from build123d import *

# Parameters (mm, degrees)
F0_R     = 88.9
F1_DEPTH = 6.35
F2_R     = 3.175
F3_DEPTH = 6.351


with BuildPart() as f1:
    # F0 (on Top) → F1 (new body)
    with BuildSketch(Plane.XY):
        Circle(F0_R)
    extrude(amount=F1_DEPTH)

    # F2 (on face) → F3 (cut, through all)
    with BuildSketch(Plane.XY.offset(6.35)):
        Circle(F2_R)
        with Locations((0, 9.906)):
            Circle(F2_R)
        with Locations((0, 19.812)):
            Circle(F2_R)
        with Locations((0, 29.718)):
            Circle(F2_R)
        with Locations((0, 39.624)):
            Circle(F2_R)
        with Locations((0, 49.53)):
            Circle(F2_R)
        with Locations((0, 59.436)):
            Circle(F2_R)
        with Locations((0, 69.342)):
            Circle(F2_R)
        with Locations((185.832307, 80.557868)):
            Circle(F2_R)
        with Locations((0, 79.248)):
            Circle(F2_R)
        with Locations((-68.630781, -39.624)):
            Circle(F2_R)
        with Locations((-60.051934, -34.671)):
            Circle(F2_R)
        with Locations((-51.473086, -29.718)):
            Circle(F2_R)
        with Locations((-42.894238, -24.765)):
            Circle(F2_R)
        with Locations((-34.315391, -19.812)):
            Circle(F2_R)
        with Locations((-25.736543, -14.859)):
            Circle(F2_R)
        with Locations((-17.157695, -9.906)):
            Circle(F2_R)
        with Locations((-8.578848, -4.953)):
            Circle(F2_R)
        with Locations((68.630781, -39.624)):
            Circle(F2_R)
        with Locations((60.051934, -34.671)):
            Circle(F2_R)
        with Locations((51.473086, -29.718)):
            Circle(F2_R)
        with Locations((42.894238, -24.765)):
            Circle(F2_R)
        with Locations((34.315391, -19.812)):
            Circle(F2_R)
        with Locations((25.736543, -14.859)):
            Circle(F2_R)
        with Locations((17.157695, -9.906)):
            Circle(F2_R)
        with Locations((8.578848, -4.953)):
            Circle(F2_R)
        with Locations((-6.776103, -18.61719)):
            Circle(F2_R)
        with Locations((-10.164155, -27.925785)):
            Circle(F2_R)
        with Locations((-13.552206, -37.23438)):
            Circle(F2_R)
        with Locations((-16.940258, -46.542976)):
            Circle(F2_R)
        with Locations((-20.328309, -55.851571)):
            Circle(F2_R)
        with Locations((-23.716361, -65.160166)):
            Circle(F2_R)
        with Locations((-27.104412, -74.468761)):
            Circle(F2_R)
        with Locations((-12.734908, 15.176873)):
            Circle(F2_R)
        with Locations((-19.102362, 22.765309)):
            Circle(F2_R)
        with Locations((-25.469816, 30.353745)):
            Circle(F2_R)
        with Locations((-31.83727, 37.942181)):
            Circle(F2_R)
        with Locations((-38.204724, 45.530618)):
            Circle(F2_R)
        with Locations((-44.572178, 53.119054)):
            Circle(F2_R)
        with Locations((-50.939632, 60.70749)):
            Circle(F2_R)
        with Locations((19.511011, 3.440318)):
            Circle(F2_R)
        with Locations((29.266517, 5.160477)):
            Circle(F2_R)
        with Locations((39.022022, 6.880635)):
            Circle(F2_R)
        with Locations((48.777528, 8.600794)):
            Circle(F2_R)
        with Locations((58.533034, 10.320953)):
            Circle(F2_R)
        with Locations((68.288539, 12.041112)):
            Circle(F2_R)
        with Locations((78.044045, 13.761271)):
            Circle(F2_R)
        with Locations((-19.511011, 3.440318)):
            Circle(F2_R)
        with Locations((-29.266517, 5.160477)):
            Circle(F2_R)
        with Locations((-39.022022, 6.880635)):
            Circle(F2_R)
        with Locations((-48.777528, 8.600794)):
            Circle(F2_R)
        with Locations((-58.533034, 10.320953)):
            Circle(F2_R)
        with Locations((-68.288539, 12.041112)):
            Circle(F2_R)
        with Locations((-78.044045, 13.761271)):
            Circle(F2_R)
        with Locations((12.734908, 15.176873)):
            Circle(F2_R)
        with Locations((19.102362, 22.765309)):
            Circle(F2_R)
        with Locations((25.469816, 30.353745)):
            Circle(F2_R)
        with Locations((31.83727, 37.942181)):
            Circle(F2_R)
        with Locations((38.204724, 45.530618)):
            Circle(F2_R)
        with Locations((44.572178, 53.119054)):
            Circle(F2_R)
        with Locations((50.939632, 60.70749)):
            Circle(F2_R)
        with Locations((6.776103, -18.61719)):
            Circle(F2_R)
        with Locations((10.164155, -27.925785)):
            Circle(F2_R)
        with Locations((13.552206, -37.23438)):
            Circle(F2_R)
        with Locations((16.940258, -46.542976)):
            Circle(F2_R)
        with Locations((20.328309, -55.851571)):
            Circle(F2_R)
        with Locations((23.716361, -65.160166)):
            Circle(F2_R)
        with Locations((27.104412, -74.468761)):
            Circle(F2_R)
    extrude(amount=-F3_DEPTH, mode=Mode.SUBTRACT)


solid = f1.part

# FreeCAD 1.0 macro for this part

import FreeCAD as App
import Part
import Sketcher
from FreeCAD import Vector
Q = App.Units.Quantity

doc = App.newDocument("Part")
params = doc.addObject("Spreadsheet::Sheet", "Params")
for row, (alias, value) in enumerate([
    ("sketch1_diameter", "7 in"),
    ("pad1_length", "0.25 in"),
    ("sketch2_diameter", "0.25 in"),
], start=1):
    params.set(f"A{row}", alias)
    params.set(f"B{row}", "=" + value)
    params.setAlias(f"B{row}", alias)

body = doc.addObject("PartDesign::Body", "Body")

# Sketch on XY plane
sketch1 = doc.addObject("Sketcher::SketchObject", "Sketch")
body.addObject(sketch1)
sketch1.AttachmentSupport = (doc.XY_Plane, [""])
sketch1.MapMode = "FlatFace"
sketch1.addGeometry(Part.Circle(Vector(0, 0, 0), Vector(0, 0, 1), 89), False)
sketch1.addConstraint([
    Sketcher.Constraint("Coincident", 0, 3, -1, 1),
    Sketcher.Constraint("Diameter", 0, Q("7 in")),
])
sketch1.setExpression("Constraints[1]", "Params.sketch1_diameter")
pad1 = doc.addObject("PartDesign::Pad", "Pad")
body.addObject(pad1)
pad1.Profile = sketch1
pad1.setExpression("Length", "Params.pad1_length")

# Sketch on XY plane
sketch2 = doc.addObject("Sketcher::SketchObject", "Sketch001")
body.addObject(sketch2)
sketch2.AttachmentSupport = (doc.XY_Plane, [""])
sketch2.MapMode = "FlatFace"
sketch2.AttachmentOffset = App.Placement(Vector(0, 0, 0.25 * 25.4), App.Rotation())
sketch2.addGeometry([
    Part.Circle(Vector(0, 0, 0), Vector(0, 0, 1), 3.2),  # 0
    Part.Circle(Vector(0, 9.9, 0), Vector(0, 0, 1), 3.2),  # 1
    Part.Circle(Vector(0, 19.8, 0), Vector(0, 0, 1), 3.2),  # 2
    Part.Circle(Vector(0, 29.7, 0), Vector(0, 0, 1), 3.2),  # 3
    Part.Circle(Vector(0, 39.6, 0), Vector(0, 0, 1), 3.2),  # 4
    Part.Circle(Vector(0, 49.5, 0), Vector(0, 0, 1), 3.2),  # 5
    Part.Circle(Vector(0, 59.4, 0), Vector(0, 0, 1), 3.2),  # 6
    Part.Circle(Vector(0, 69.3, 0), Vector(0, 0, 1), 3.2),  # 7
    Part.Circle(Vector(185.8, 80.6, 0), Vector(0, 0, 1), 3.2),  # 8
    Part.Circle(Vector(0, 79.2, 0), Vector(0, 0, 1), 3.2),  # 9
    Part.Circle(Vector(-68.6, -39.6, 0), Vector(0, 0, 1), 3.2),  # 10
    Part.Circle(Vector(-60.1, -34.7, 0), Vector(0, 0, 1), 3.2),  # 11
    Part.Circle(Vector(-51.5, -29.7, 0), Vector(0, 0, 1), 3.2),  # 12
    Part.Circle(Vector(-42.9, -24.8, 0), Vector(0, 0, 1), 3.2),  # 13
    Part.Circle(Vector(-34.3, -19.8, 0), Vector(0, 0, 1), 3.2),  # 14
    Part.Circle(Vector(-25.7, -14.9, 0), Vector(0, 0, 1), 3.2),  # 15
    Part.Circle(Vector(-17.2, -9.9, 0), Vector(0, 0, 1), 3.2),  # 16
    Part.Circle(Vector(-8.6, -5, 0), Vector(0, 0, 1), 3.2),  # 17
    Part.Circle(Vector(68.6, -39.6, 0), Vector(0, 0, 1), 3.2),  # 18
    Part.Circle(Vector(60.1, -34.7, 0), Vector(0, 0, 1), 3.2),  # 19
    Part.Circle(Vector(51.5, -29.7, 0), Vector(0, 0, 1), 3.2),  # 20
    Part.Circle(Vector(42.9, -24.8, 0), Vector(0, 0, 1), 3.2),  # 21
    Part.Circle(Vector(34.3, -19.8, 0), Vector(0, 0, 1), 3.2),  # 22
    Part.Circle(Vector(25.7, -14.9, 0), Vector(0, 0, 1), 3.2),  # 23
    Part.Circle(Vector(17.2, -9.9, 0), Vector(0, 0, 1), 3.2),  # 24
    Part.Circle(Vector(8.6, -5, 0), Vector(0, 0, 1), 3.2),  # 25
    Part.Circle(Vector(-6.8, -18.6, 0), Vector(0, 0, 1), 3.2),  # 26
    Part.Circle(Vector(-10.2, -27.9, 0), Vector(0, 0, 1), 3.2),  # 27
    Part.Circle(Vector(-13.6, -37.2, 0), Vector(0, 0, 1), 3.2),  # 28
    Part.Circle(Vector(-16.9, -46.5, 0), Vector(0, 0, 1), 3.2),  # 29
    Part.Circle(Vector(-20.3, -55.9, 0), Vector(0, 0, 1), 3.2),  # 30
    Part.Circle(Vector(-23.7, -65.2, 0), Vector(0, 0, 1), 3.2),  # 31
    Part.Circle(Vector(-27.1, -74.5, 0), Vector(0, 0, 1), 3.2),  # 32
    Part.Circle(Vector(-12.7, 15.2, 0), Vector(0, 0, 1), 3.2),  # 33
    Part.Circle(Vector(-19.1, 22.8, 0), Vector(0, 0, 1), 3.2),  # 34
    Part.Circle(Vector(-25.5, 30.4, 0), Vector(0, 0, 1), 3.2),  # 35
    Part.Circle(Vector(-31.8, 37.9, 0), Vector(0, 0, 1), 3.2),  # 36
    Part.Circle(Vector(-38.2, 45.5, 0), Vector(0, 0, 1), 3.2),  # 37
    Part.Circle(Vector(-44.6, 53.1, 0), Vector(0, 0, 1), 3.2),  # 38
    Part.Circle(Vector(-50.9, 60.7, 0), Vector(0, 0, 1), 3.2),  # 39
    Part.Circle(Vector(19.5, 3.4, 0), Vector(0, 0, 1), 3.2),  # 40
    Part.Circle(Vector(29.3, 5.2, 0), Vector(0, 0, 1), 3.2),  # 41
    Part.Circle(Vector(39, 6.9, 0), Vector(0, 0, 1), 3.2),  # 42
    Part.Circle(Vector(48.8, 8.6, 0), Vector(0, 0, 1), 3.2),  # 43
    Part.Circle(Vector(58.5, 10.3, 0), Vector(0, 0, 1), 3.2),  # 44
    Part.Circle(Vector(68.3, 12, 0), Vector(0, 0, 1), 3.2),  # 45
    Part.Circle(Vector(78, 13.8, 0), Vector(0, 0, 1), 3.2),  # 46
    Part.Circle(Vector(-19.5, 3.4, 0), Vector(0, 0, 1), 3.2),  # 47
    Part.Circle(Vector(-29.3, 5.2, 0), Vector(0, 0, 1), 3.2),  # 48
    Part.Circle(Vector(-39, 6.9, 0), Vector(0, 0, 1), 3.2),  # 49
    Part.Circle(Vector(-48.8, 8.6, 0), Vector(0, 0, 1), 3.2),  # 50
    Part.Circle(Vector(-58.5, 10.3, 0), Vector(0, 0, 1), 3.2),  # 51
    Part.Circle(Vector(-68.3, 12, 0), Vector(0, 0, 1), 3.2),  # 52
    Part.Circle(Vector(-78, 13.8, 0), Vector(0, 0, 1), 3.2),  # 53
    Part.Circle(Vector(12.7, 15.2, 0), Vector(0, 0, 1), 3.2),  # 54
    Part.Circle(Vector(19.1, 22.8, 0), Vector(0, 0, 1), 3.2),  # 55
    Part.Circle(Vector(25.5, 30.4, 0), Vector(0, 0, 1), 3.2),  # 56
    Part.Circle(Vector(31.8, 37.9, 0), Vector(0, 0, 1), 3.2),  # 57
    Part.Circle(Vector(38.2, 45.5, 0), Vector(0, 0, 1), 3.2),  # 58
    Part.Circle(Vector(44.6, 53.1, 0), Vector(0, 0, 1), 3.2),  # 59
    Part.Circle(Vector(50.9, 60.7, 0), Vector(0, 0, 1), 3.2),  # 60
    Part.Circle(Vector(6.8, -18.6, 0), Vector(0, 0, 1), 3.2),  # 61
    Part.Circle(Vector(10.2, -27.9, 0), Vector(0, 0, 1), 3.2),  # 62
    Part.Circle(Vector(13.6, -37.2, 0), Vector(0, 0, 1), 3.2),  # 63
    Part.Circle(Vector(16.9, -46.5, 0), Vector(0, 0, 1), 3.2),  # 64
    Part.Circle(Vector(20.3, -55.9, 0), Vector(0, 0, 1), 3.2),  # 65
    Part.Circle(Vector(23.7, -65.2, 0), Vector(0, 0, 1), 3.2),  # 66
    Part.Circle(Vector(27.1, -74.5, 0), Vector(0, 0, 1), 3.2),  # 67
], False)
sketch2.addConstraint([
    Sketcher.Constraint("Coincident", 0, 3, -1, 1),
    Sketcher.Constraint("Equal", 0, 1),
    Sketcher.Constraint("Equal", 1, 2),
    Sketcher.Constraint("Equal", 2, 3),
    Sketcher.Constraint("Equal", 3, 4),
    Sketcher.Constraint("Equal", 4, 5),
    Sketcher.Constraint("Equal", 5, 6),
    Sketcher.Constraint("Equal", 6, 7),
    Sketcher.Constraint("Equal", 7, 8),
    Sketcher.Constraint("Equal", 8, 9),
    Sketcher.Constraint("Equal", 9, 10),
    Sketcher.Constraint("Equal", 10, 11),
    Sketcher.Constraint("Equal", 11, 12),
    Sketcher.Constraint("Equal", 12, 13),
    Sketcher.Constraint("Equal", 13, 14),
    Sketcher.Constraint("Equal", 14, 15),
    Sketcher.Constraint("Equal", 15, 16),
    Sketcher.Constraint("Equal", 16, 17),
    Sketcher.Constraint("Equal", 17, 18),
    Sketcher.Constraint("Equal", 18, 19),
    Sketcher.Constraint("Equal", 19, 20),
    Sketcher.Constraint("Equal", 20, 21),
    Sketcher.Constraint("Equal", 21, 22),
    Sketcher.Constraint("Equal", 22, 23),
    Sketcher.Constraint("Equal", 23, 24),
    Sketcher.Constraint("Equal", 24, 25),
    Sketcher.Constraint("Equal", 25, 26),
    Sketcher.Constraint("Equal", 26, 27),
    Sketcher.Constraint("Equal", 27, 28),
    Sketcher.Constraint("Equal", 28, 29),
    Sketcher.Constraint("Equal", 29, 30),
    Sketcher.Constraint("Equal", 30, 31),
    Sketcher.Constraint("Equal", 31, 32),
    Sketcher.Constraint("Equal", 32, 33),
    Sketcher.Constraint("Equal", 33, 34),
    Sketcher.Constraint("Equal", 34, 35),
    Sketcher.Constraint("Equal", 35, 36),
    Sketcher.Constraint("Equal", 36, 37),
    Sketcher.Constraint("Equal", 37, 38),
    Sketcher.Constraint("Equal", 38, 39),
    Sketcher.Constraint("Equal", 39, 40),
    Sketcher.Constraint("Equal", 40, 41),
    Sketcher.Constraint("Equal", 41, 42),
    Sketcher.Constraint("Equal", 42, 43),
    Sketcher.Constraint("Equal", 43, 44),
    Sketcher.Constraint("Equal", 44, 45),
    Sketcher.Constraint("Equal", 45, 46),
    Sketcher.Constraint("Equal", 46, 47),
    Sketcher.Constraint("Equal", 47, 48),
    Sketcher.Constraint("Equal", 48, 49),
    Sketcher.Constraint("Equal", 49, 50),
    Sketcher.Constraint("Equal", 50, 51),
    Sketcher.Constraint("Equal", 51, 52),
    Sketcher.Constraint("Equal", 52, 53),
    Sketcher.Constraint("Equal", 53, 54),
    Sketcher.Constraint("Equal", 54, 55),
    Sketcher.Constraint("Equal", 55, 56),
    Sketcher.Constraint("Equal", 56, 57),
    Sketcher.Constraint("Equal", 57, 58),
    Sketcher.Constraint("Equal", 58, 59),
    Sketcher.Constraint("Equal", 59, 60),
    Sketcher.Constraint("Equal", 60, 61),
    Sketcher.Constraint("Equal", 61, 62),
    Sketcher.Constraint("Equal", 62, 63),
    Sketcher.Constraint("Equal", 63, 64),
    Sketcher.Constraint("Equal", 64, 65),
    Sketcher.Constraint("Equal", 65, 66),
    Sketcher.Constraint("Equal", 66, 67),
    Sketcher.Constraint("Symmetric", 10, 3, 18, 3, -2),
    Sketcher.Constraint("Symmetric", 11, 3, 19, 3, -2),
    Sketcher.Constraint("Symmetric", 12, 3, 20, 3, -2),
    Sketcher.Constraint("Symmetric", 13, 3, 21, 3, -2),
    Sketcher.Constraint("Symmetric", 14, 3, 22, 3, -2),
    Sketcher.Constraint("Symmetric", 15, 3, 23, 3, -2),
    Sketcher.Constraint("Symmetric", 16, 3, 24, 3, -2),
    Sketcher.Constraint("Symmetric", 17, 3, 25, 3, -2),
    Sketcher.Constraint("Symmetric", 40, 3, 47, 3, -2),
    Sketcher.Constraint("Symmetric", 41, 3, 48, 3, -2),
    Sketcher.Constraint("Symmetric", 42, 3, 49, 3, -2),
    Sketcher.Constraint("Symmetric", 43, 3, 50, 3, -2),
    Sketcher.Constraint("Symmetric", 44, 3, 51, 3, -2),
    Sketcher.Constraint("Symmetric", 45, 3, 52, 3, -2),
    Sketcher.Constraint("Symmetric", 46, 3, 53, 3, -2),
    Sketcher.Constraint("Symmetric", 33, 3, 54, 3, -2),
    Sketcher.Constraint("Symmetric", 34, 3, 55, 3, -2),
    Sketcher.Constraint("Symmetric", 35, 3, 56, 3, -2),
    Sketcher.Constraint("Symmetric", 36, 3, 57, 3, -2),
    Sketcher.Constraint("Symmetric", 37, 3, 58, 3, -2),
    Sketcher.Constraint("Symmetric", 38, 3, 59, 3, -2),
    Sketcher.Constraint("Symmetric", 39, 3, 60, 3, -2),
    Sketcher.Constraint("Symmetric", 26, 3, 61, 3, -2),
    Sketcher.Constraint("Symmetric", 27, 3, 62, 3, -2),
    Sketcher.Constraint("Symmetric", 28, 3, 63, 3, -2),
    Sketcher.Constraint("Symmetric", 29, 3, 64, 3, -2),
    Sketcher.Constraint("Symmetric", 30, 3, 65, 3, -2),
    Sketcher.Constraint("Symmetric", 31, 3, 66, 3, -2),
    Sketcher.Constraint("Symmetric", 32, 3, 67, 3, -2),
    Sketcher.Constraint("PointOnObject", 1, 3, -2),
    Sketcher.Constraint("PointOnObject", 2, 3, -2),
    Sketcher.Constraint("PointOnObject", 3, 3, -2),
    Sketcher.Constraint("PointOnObject", 4, 3, -2),
    Sketcher.Constraint("PointOnObject", 5, 3, -2),
    Sketcher.Constraint("PointOnObject", 6, 3, -2),
    Sketcher.Constraint("PointOnObject", 7, 3, -2),
    Sketcher.Constraint("PointOnObject", 9, 3, -2),
    Sketcher.Constraint("Diameter", 0, Q("0.25 in")),
    Sketcher.Constraint("DistanceY", -1, 1, 1, 3, Q("0.39 in")),
    Sketcher.Constraint("DistanceY", -1, 1, 2, 3, Q("0.78 in")),
    Sketcher.Constraint("DistanceY", -1, 1, 3, 3, Q("1.17 in")),
    Sketcher.Constraint("DistanceY", -1, 1, 4, 3, Q("1.56 in")),
    Sketcher.Constraint("DistanceY", -1, 1, 5, 3, Q("1.95 in")),
    Sketcher.Constraint("DistanceY", -1, 1, 6, 3, Q("2.34 in")),
    Sketcher.Constraint("DistanceY", -1, 1, 7, 3, Q("2.73 in")),
    Sketcher.Constraint("DistanceY", -1, 1, 9, 3, Q("3.12 in")),
    Sketcher.Constraint("DistanceY", 10, 3, -1, 1, Q("1.56 in")),
    Sketcher.Constraint("DistanceY", 12, 3, -1, 1, Q("1.17 in")),
    Sketcher.Constraint("DistanceY", 14, 3, -1, 1, Q("0.78 in")),
    Sketcher.Constraint("DistanceY", 16, 3, -1, 1, Q("0.39 in")),
    Sketcher.Constraint("DistanceY", 11, 3, -1, 1, Q("1.365 in")),
    Sketcher.Constraint("DistanceY", 13, 3, -1, 1, Q("0.975 in")),
    Sketcher.Constraint("DistanceY", 15, 3, -1, 1, Q("0.585 in")),
    Sketcher.Constraint("DistanceY", 17, 3, -1, 1, Q("0.195 in")),
    Sketcher.Constraint("DistanceX", 16, 3, -1, 1, Q("0.6754998 in")),
    Sketcher.Constraint("DistanceX", -1, 1, 42, 3, Q("1.5363001 in")),
    Sketcher.Constraint("DistanceX", -1, 1, 46, 3, Q("3.0726002 in")),
    Sketcher.Constraint("DistanceY", -1, 1, 8, 3, Q("80.557868 mm")),
    Sketcher.Constraint("DistanceX", 10, 3, -1, 1, Q("68.630781 mm")),
    Sketcher.Constraint("DistanceX", 14, 3, -1, 1, Q("34.315391 mm")),
    Sketcher.Constraint("DistanceX", 17, 3, -1, 1, Q("8.578848 mm")),
    Sketcher.Constraint("DistanceY", 26, 3, -1, 1, Q("18.61719 mm")),
    Sketcher.Constraint("DistanceY", 28, 3, -1, 1, Q("37.23438 mm")),
    Sketcher.Constraint("DistanceX", 29, 3, -1, 1, Q("16.940258 mm")),
    Sketcher.Constraint("DistanceX", 30, 3, -1, 1, Q("20.328309 mm")),
    Sketcher.Constraint("DistanceY", 30, 3, -1, 1, Q("55.851571 mm")),
    Sketcher.Constraint("DistanceX", 31, 3, -1, 1, Q("23.716361 mm")),
    Sketcher.Constraint("DistanceX", 32, 3, -1, 1, Q("27.104412 mm")),
    Sketcher.Constraint("DistanceY", 32, 3, -1, 1, Q("74.468761 mm")),
    Sketcher.Constraint("DistanceX", 33, 3, -1, 1, Q("12.734908 mm")),
    Sketcher.Constraint("DistanceX", 34, 3, -1, 1, Q("19.102362 mm")),
    Sketcher.Constraint("DistanceY", -1, 1, 34, 3, Q("22.765309 mm")),
    Sketcher.Constraint("DistanceX", 36, 3, -1, 1, Q("31.83727 mm")),
    Sketcher.Constraint("DistanceY", -1, 1, 36, 3, Q("37.942181 mm")),
    Sketcher.Constraint("DistanceY", -1, 1, 39, 3, Q("60.70749 mm")),
    Sketcher.Constraint("DistanceX", -1, 1, 40, 3, Q("19.511011 mm")),
    Sketcher.Constraint("DistanceY", -1, 1, 40, 3, Q("3.440318 mm")),
    Sketcher.Constraint("DistanceX", -1, 1, 45, 3, Q("68.288539 mm")),
    Sketcher.Constraint("DistanceY", -1, 1, 46, 3, Q("13.761271 mm")),
    Sketcher.Constraint("DistanceX", -1, 1, 8, 3, Q("185.832307 mm")),
    Sketcher.Constraint("DistanceX", 11, 3, -1, 1, Q("60.051934 mm")),
    Sketcher.Constraint("DistanceX", 12, 3, -1, 1, Q("51.473086 mm")),
    Sketcher.Constraint("DistanceX", 13, 3, -1, 1, Q("42.894238 mm")),
    Sketcher.Constraint("DistanceX", 15, 3, -1, 1, Q("25.736543 mm")),
    Sketcher.Constraint("DistanceX", 26, 3, -1, 1, Q("6.776103 mm")),
    Sketcher.Constraint("DistanceX", 27, 3, -1, 1, Q("10.164155 mm")),
    Sketcher.Constraint("DistanceY", 27, 3, -1, 1, Q("27.925785 mm")),
    Sketcher.Constraint("DistanceX", 28, 3, -1, 1, Q("13.552206 mm")),
    Sketcher.Constraint("DistanceY", 29, 3, -1, 1, Q("46.542976 mm")),
    Sketcher.Constraint("DistanceY", 31, 3, -1, 1, Q("65.160166 mm")),
    Sketcher.Constraint("DistanceY", -1, 1, 33, 3, Q("15.176873 mm")),
    Sketcher.Constraint("DistanceX", 35, 3, -1, 1, Q("25.469816 mm")),
    Sketcher.Constraint("DistanceY", -1, 1, 35, 3, Q("30.353745 mm")),
    Sketcher.Constraint("DistanceX", 37, 3, -1, 1, Q("38.204724 mm")),
    Sketcher.Constraint("DistanceY", -1, 1, 37, 3, Q("45.530618 mm")),
    Sketcher.Constraint("DistanceX", 38, 3, -1, 1, Q("44.572178 mm")),
    Sketcher.Constraint("DistanceY", -1, 1, 38, 3, Q("53.119054 mm")),
    Sketcher.Constraint("DistanceX", 39, 3, -1, 1, Q("50.939632 mm")),
    Sketcher.Constraint("DistanceX", -1, 1, 41, 3, Q("29.266517 mm")),
    Sketcher.Constraint("DistanceY", -1, 1, 41, 3, Q("5.160477 mm")),
    Sketcher.Constraint("DistanceY", -1, 1, 42, 3, Q("6.880635 mm")),
    Sketcher.Constraint("DistanceX", -1, 1, 43, 3, Q("48.777528 mm")),
    Sketcher.Constraint("DistanceY", -1, 1, 43, 3, Q("8.600794 mm")),
    Sketcher.Constraint("DistanceX", -1, 1, 44, 3, Q("58.533034 mm")),
    Sketcher.Constraint("DistanceY", -1, 1, 44, 3, Q("10.320953 mm")),
    Sketcher.Constraint("DistanceY", -1, 1, 45, 3, Q("12.041112 mm")),
])
sketch2.setExpression("Constraints[105]", "Params.sketch2_diameter")
pocket1 = doc.addObject("PartDesign::Pocket", "Pocket")
body.addObject(pocket1)
pocket1.Profile = sketch2
pocket1.Type = "ThroughAll"

doc.recompute()
